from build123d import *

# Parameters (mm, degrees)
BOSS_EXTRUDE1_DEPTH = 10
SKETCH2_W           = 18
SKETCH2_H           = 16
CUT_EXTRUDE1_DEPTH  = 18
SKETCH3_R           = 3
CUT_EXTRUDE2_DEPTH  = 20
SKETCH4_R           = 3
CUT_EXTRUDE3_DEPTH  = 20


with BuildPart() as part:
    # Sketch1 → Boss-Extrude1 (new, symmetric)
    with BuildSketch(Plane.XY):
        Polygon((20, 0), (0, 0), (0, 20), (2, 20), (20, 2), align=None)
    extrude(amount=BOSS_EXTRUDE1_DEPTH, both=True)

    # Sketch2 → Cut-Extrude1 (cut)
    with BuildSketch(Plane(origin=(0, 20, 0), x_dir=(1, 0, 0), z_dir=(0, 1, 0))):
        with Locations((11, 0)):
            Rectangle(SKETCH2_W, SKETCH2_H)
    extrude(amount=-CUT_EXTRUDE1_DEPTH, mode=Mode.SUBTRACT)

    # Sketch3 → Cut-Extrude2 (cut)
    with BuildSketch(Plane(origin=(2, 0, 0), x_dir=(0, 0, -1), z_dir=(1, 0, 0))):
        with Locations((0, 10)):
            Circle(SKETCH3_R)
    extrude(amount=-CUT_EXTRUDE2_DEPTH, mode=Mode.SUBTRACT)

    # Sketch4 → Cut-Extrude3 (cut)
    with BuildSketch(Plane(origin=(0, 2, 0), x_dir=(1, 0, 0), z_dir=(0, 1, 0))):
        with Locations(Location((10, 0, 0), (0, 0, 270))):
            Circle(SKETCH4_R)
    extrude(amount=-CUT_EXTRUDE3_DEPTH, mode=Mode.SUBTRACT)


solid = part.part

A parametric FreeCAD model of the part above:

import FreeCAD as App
import Part
import Sketcher
from FreeCAD import Vector


def add_polygon(sketch, points):
    """Adds a closed chain of lines whose ends are joined by coincident constraints."""
    first, n = sketch.GeometryCount, len(points)
    for a, b in zip(points, points[1:] + points[:1]):
        sketch.addGeometry(Part.LineSegment(App.Vector(*a, 0), App.Vector(*b, 0)), False)
    for i in range(n):
        sketch.addConstraint(Sketcher.Constraint("Coincident", first + i, 2, first + (i + 1) % n, 1))

doc = App.newDocument("Part")
body = doc.addObject("PartDesign::Body", "Body")

sketch1 = doc.addObject("Sketcher::SketchObject", "Sketch")
body.addObject(sketch1)
sketch1.AttachmentSupport = (doc.XY_Plane, [""])
sketch1.MapMode = "FlatFace"
add_polygon(sketch1, [(0, 0), (20, 0), (20, 2), (2, 20), (0, 20)])
sketch1.addConstraint([
    Sketcher.Constraint("Horizontal", 0),
    Sketcher.Constraint("Vertical", 1),
    Sketcher.Constraint("Horizontal", 3),
    Sketcher.Constraint("Vertical", 4),
    Sketcher.Constraint("Coincident", 4, 2, -1, 1),
    Sketcher.Constraint("Equal", 3, 1),
    Sketcher.Constraint("Equal", 0, 4),
    Sketcher.Constraint("DistanceX", 0, 1, 0, 2, 20.0),
    Sketcher.Constraint("DistanceX", 3, 2, 3, 1, 2.0),
])
pad1 = doc.addObject("PartDesign::Pad", "Pad")
body.addObject(pad1)
pad1.Profile = sketch1
pad1.Length = 20
pad1.Midplane = True

sketch2 = doc.addObject("Sketcher::SketchObject", "Sketch001")
body.addObject(sketch2)
sketch2.AttachmentSupport = (doc.XZ_Plane, [""])
sketch2.MapMode = "FlatFace"
sketch2.AttachmentOffset = App.Placement(Vector(0, 0, -20), App.Rotation())
add_polygon(sketch2, [(2, -8), (2, 8), (20, 8), (20, -8)])
sketch2.addConstraint([
    Sketcher.Constraint("Vertical", 0),
    Sketcher.Constraint("Horizontal", 1),
    Sketcher.Constraint("Vertical", 2),
    Sketcher.Constraint("Horizontal", 3),
    Sketcher.Constraint("DistanceX", 1, 1, 1, 2, 18.0),
    Sketcher.Constraint("DistanceY", 0, 1, 0, 2, 16.0),
    Sketcher.Constraint("DistanceX", -1, 1, 0, 2, 2.0),
    Sketcher.Constraint("DistanceY", -1, 1, 0, 2, 8.0),
])
pocket1 = doc.addObject("PartDesign::Pocket", "Pocket")
body.addObject(pocket1)
pocket1.Profile = sketch2
pocket1.Length = 18
pocket1.Reversed = True

sketch3 = doc.addObject("Sketcher::SketchObject", "Sketch002")
body.addObject(sketch3)
sketch3.AttachmentSupport = (doc.YZ_Plane, [""])
sketch3.MapMode = "FlatFace"
sketch3.AttachmentOffset = App.Placement(Vector(0, 0, 2), App.Rotation())
sketch3.addGeometry(Part.Circle(Vector(10, 0, 0), Vector(0, 0, 1), 3), False)
sketch3.addConstraint([
    Sketcher.Constraint("PointOnObject", 0, 3, -1),
    Sketcher.Constraint("Diameter", 0, 6.0),
    Sketcher.Constraint("DistanceX", -1, 1, 0, 3, 10.0),
])
pocket2 = doc.addObject("PartDesign::Pocket", "Pocket001")
body.addObject(pocket2)
pocket2.Profile = sketch3
pocket2.Length = 20

sketch4 = doc.addObject("Sketcher::SketchObject", "Sketch003")
body.addObject(sketch4)
sketch4.AttachmentSupport = (doc.XZ_Plane, [""])
sketch4.MapMode = "FlatFace"
sketch4.AttachmentOffset = App.Placement(Vector(0, 0, -2), App.Rotation())
sketch4.addGeometry(Part.Circle(Vector(10, 0, 0), Vector(0, 0, 1), 3), False)
sketch4.addConstraint([
    Sketcher.Constraint("PointOnObject", 0, 3, -1),
    Sketcher.Constraint("Diameter", 0, 6.0),
    Sketcher.Constraint("DistanceX", -1, 1, 0, 3, 10.0),
])
pocket3 = doc.addObject("PartDesign::Pocket", "Pocket002")
body.addObject(pocket3)
pocket3.Profile = sketch4
pocket3.Length = 20
pocket3.Reversed = True

doc.recompute()
